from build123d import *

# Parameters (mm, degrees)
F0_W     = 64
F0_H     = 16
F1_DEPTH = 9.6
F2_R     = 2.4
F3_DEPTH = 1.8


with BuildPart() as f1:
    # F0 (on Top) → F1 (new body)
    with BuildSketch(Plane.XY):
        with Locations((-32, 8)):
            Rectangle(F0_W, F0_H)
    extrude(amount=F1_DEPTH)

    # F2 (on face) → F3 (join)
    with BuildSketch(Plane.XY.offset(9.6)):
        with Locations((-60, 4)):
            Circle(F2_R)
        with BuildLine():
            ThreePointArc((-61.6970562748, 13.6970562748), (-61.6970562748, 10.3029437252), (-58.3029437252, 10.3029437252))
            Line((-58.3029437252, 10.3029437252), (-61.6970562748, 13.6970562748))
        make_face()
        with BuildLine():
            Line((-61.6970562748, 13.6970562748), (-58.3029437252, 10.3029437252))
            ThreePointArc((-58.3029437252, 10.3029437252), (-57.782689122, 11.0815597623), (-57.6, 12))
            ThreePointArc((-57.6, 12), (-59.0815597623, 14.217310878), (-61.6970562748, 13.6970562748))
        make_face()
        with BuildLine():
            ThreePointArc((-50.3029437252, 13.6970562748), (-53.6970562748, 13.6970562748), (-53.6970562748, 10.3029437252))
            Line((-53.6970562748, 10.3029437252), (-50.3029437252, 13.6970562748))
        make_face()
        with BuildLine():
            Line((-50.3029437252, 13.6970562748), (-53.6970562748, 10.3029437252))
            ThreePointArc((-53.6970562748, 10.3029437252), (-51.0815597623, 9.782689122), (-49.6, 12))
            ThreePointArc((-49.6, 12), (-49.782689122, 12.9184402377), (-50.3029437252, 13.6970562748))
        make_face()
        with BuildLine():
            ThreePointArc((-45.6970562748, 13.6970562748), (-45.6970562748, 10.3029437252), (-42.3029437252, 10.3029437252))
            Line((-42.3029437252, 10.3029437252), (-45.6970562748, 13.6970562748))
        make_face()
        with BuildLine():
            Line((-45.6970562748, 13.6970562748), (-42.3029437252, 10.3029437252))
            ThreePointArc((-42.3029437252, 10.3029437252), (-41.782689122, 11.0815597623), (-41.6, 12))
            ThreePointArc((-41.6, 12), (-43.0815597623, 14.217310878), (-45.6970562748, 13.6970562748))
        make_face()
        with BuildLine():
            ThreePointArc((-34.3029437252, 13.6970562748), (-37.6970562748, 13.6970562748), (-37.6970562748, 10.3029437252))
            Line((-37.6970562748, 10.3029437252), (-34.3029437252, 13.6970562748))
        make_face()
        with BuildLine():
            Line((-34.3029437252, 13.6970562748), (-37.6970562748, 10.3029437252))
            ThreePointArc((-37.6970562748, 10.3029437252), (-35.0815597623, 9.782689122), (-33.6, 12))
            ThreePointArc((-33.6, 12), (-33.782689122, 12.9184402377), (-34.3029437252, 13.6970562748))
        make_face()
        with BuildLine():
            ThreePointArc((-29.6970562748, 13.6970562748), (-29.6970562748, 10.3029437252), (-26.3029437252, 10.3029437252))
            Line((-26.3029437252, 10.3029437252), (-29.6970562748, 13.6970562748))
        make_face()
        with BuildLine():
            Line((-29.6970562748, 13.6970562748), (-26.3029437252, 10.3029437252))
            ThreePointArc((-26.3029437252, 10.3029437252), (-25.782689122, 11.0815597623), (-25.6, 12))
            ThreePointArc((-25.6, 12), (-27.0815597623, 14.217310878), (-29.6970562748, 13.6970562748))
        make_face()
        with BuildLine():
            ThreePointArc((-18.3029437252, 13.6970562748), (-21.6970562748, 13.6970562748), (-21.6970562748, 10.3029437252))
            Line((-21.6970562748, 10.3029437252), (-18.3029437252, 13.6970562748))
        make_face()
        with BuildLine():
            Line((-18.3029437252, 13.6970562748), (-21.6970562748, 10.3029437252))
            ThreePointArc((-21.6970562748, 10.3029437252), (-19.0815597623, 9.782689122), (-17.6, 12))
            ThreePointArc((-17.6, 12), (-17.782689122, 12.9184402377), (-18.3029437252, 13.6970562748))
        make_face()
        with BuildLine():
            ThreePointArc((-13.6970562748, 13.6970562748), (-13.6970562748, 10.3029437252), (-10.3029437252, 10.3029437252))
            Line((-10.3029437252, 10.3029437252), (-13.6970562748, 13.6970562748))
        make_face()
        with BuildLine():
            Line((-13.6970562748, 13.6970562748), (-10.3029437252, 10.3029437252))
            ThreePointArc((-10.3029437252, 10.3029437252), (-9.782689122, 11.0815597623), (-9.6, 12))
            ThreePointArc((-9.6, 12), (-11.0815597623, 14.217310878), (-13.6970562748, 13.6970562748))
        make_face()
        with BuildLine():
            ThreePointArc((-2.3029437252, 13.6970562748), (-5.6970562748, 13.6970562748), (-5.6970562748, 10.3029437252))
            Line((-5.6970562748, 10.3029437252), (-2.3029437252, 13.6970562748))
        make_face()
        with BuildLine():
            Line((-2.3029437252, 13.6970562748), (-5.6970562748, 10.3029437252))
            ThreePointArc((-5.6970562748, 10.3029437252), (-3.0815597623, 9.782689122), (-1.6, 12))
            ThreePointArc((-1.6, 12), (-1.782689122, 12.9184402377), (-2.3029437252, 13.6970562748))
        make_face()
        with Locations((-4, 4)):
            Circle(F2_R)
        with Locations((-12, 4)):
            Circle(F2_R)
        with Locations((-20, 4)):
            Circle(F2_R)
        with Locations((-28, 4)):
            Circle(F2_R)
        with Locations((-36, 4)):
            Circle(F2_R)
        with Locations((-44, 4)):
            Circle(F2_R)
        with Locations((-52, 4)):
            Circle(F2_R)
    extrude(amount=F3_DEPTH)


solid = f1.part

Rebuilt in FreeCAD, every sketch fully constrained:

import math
import FreeCAD as App
import Part
import Sketcher


def add_polygon(sketch, points):
    """Adds a closed chain of lines whose ends are joined by coincident constraints."""
    first, n = sketch.GeometryCount, len(points)
    for a, b in zip(points, points[1:] + points[:1]):
        sketch.addGeometry(Part.LineSegment(App.Vector(*a, 0), App.Vector(*b, 0)), False)
    for i in range(n):
        sketch.addConstraint(Sketcher.Constraint("Coincident", first + i, 2, first + (i + 1) % n, 1))

doc = App.newDocument("Part")
body = doc.addObject("PartDesign::Body", "Body")

# Sketch on XY plane
sketch1 = doc.addObject("Sketcher::SketchObject", "Sketch")
body.addObject(sketch1)
sketch1.AttachmentSupport = (doc.XY_Plane, [""])
sketch1.MapMode = "FlatFace"
add_polygon(sketch1, [(-64, 16), (-64, 0), (0, 0), (0, 16)])  # lines 0-3
sketch1.addConstraint(Sketcher.Constraint("Vertical", 0))
sketch1.addConstraint(Sketcher.Constraint("Horizontal", 1))
sketch1.addConstraint(Sketcher.Constraint("Vertical", 2))
sketch1.addConstraint(Sketcher.Constraint("Horizontal", 3))
sketch1.addConstraint(Sketcher.Constraint("Coincident", 1, 2, -1, 1))
sketch1.addConstraint(Sketcher.Constraint("DistanceX", 1, 1, 1, 2, 64.0))
sketch1.addConstraint(Sketcher.Constraint("DistanceY", 0, 2, 0, 1, 16.0))
pad1 = doc.addObject("PartDesign::Pad", "Pad")
body.addObject(pad1)
pad1.Profile = sketch1
pad1.Length = 9.6

# Sketch on XY plane
sketch2 = doc.addObject("Sketcher::SketchObject", "Sketch001")
body.addObject(sketch2)
sketch2.AttachmentSupport = (doc.XY_Plane, [""])
sketch2.MapMode = "FlatFace"
sketch2.AttachmentOffset = App.Placement(App.Vector(0, 0, 9.6), App.Rotation())
sketch2.addGeometry(Part.Circle(App.Vector(-60, 4, 0), App.Vector(0, 0, 1), 2.4), False)
sketch2.addGeometry(Part.ArcOfCircle(Part.Circle(App.Vector(-60, 12, 0), App.Vector(0, 0, 1), 2.4), math.radians(135), math.radians(315)), False)
sketch2.addGeometry(Part.ArcOfCircle(Part.Circle(App.Vector(-60, 12, 0), App.Vector(0, 0, 1), 2.4), math.radians(-45), math.radians(0)), False)
sketch2.addGeometry(Part.ArcOfCircle(Part.Circle(App.Vector(-60, 12, 0), App.Vector(0, 0, 1), 2.4), math.radians(0), math.radians(135)), False)
sketch2.addGeometry(Part.ArcOfCircle(Part.Circle(App.Vector(-52, 12, 0), App.Vector(0, 0, 1), 2.4), math.radians(45), math.radians(225)), False)
sketch2.addGeometry(Part.ArcOfCircle(Part.Circle(App.Vector(-52, 12, 0), App.Vector(0, 0, 1), 2.4), math.radians(-135), math.radians(0)), False)
sketch2.addGeometry(Part.ArcOfCircle(Part.Circle(App.Vector(-52, 12, 0), App.Vector(0, 0, 1), 2.4), math.radians(0), math.radians(45)), False)
sketch2.addGeometry(Part.ArcOfCircle(Part.Circle(App.Vector(-44, 12, 0), App.Vector(0, 0, 1), 2.4), math.radians(135), math.radians(315)), False)
sketch2.addGeometry(Part.ArcOfCircle(Part.Circle(App.Vector(-44, 12, 0), App.Vector(0, 0, 1), 2.4), math.radians(-45), math.radians(0)), False)
sketch2.addGeometry(Part.ArcOfCircle(Part.Circle(App.Vector(-44, 12, 0), App.Vector(0, 0, 1), 2.4), math.radians(0), math.radians(135)), False)
sketch2.addGeometry(Part.ArcOfCircle(Part.Circle(App.Vector(-36, 12, 0), App.Vector(0, 0, 1), 2.4), math.radians(45), math.radians(225)), False)
sketch2.addGeometry(Part.ArcOfCircle(Part.Circle(App.Vector(-36, 12, 0), App.Vector(0, 0, 1), 2.4), math.radians(-135), math.radians(0)), False)
sketch2.addGeometry(Part.ArcOfCircle(Part.Circle(App.Vector(-36, 12, 0), App.Vector(0, 0, 1), 2.4), math.radians(0), math.radians(45)), False)
sketch2.addGeometry(Part.ArcOfCircle(Part.Circle(App.Vector(-28, 12, 0), App.Vector(0, 0, 1), 2.4), math.radians(135), math.radians(315)), False)
sketch2.addGeometry(Part.ArcOfCircle(Part.Circle(App.Vector(-28, 12, 0), App.Vector(0, 0, 1), 2.4), math.radians(-45), math.radians(0)), False)
sketch2.addGeometry(Part.ArcOfCircle(Part.Circle(App.Vector(-28, 12, 0), App.Vector(0, 0, 1), 2.4), math.radians(0), math.radians(135)), False)
sketch2.addGeometry(Part.ArcOfCircle(Part.Circle(App.Vector(-20, 12, 0), App.Vector(0, 0, 1), 2.4), math.radians(45), math.radians(225)), False)
sketch2.addGeometry(Part.ArcOfCircle(Part.Circle(App.Vector(-20, 12, 0), App.Vector(0, 0, 1), 2.4), math.radians(-135), math.radians(0)), False)
sketch2.addGeometry(Part.ArcOfCircle(Part.Circle(App.Vector(-20, 12, 0), App.Vector(0, 0, 1), 2.4), math.radians(0), math.radians(45)), False)
sketch2.addGeometry(Part.ArcOfCircle(Part.Circle(App.Vector(-12, 12, 0), App.Vector(0, 0, 1), 2.4), math.radians(135), math.radians(315)), False)
sketch2.addGeometry(Part.ArcOfCircle(Part.Circle(App.Vector(-12, 12, 0), App.Vector(0, 0, 1), 2.4), math.radians(-45), math.radians(0)), False)
sketch2.addGeometry(Part.ArcOfCircle(Part.Circle(App.Vector(-12, 12, 0), App.Vector(0, 0, 1), 2.4), math.radians(0), math.radians(135)), False)
sketch2.addGeometry(Part.ArcOfCircle(Part.Circle(App.Vector(-4, 12, 0), App.Vector(0, 0, 1), 2.4), math.radians(45), math.radians(225)), False)
sketch2.addGeometry(Part.ArcOfCircle(Part.Circle(App.Vector(-4, 12, 0), App.Vector(0, 0, 1), 2.4), math.radians(-135), math.radians(0)), False)
sketch2.addGeometry(Part.ArcOfCircle(Part.Circle(App.Vector(-4, 12, 0), App.Vector(0, 0, 1), 2.4), math.radians(0), math.radians(45)), False)
sketch2.addGeometry(Part.Circle(App.Vector(-4, 4, 0), App.Vector(0, 0, 1), 2.4), False)
sketch2.addGeometry(Part.Circle(App.Vector(-12, 4, 0), App.Vector(0, 0, 1), 2.4), False)
sketch2.addGeometry(Part.Circle(App.Vector(-20, 4, 0), App.Vector(0, 0, 1), 2.4), False)
sketch2.addGeometry(Part.Circle(App.Vector(-28, 4, 0), App.Vector(0, 0, 1), 2.4), False)
sketch2.addGeometry(Part.Circle(App.Vector(-36, 4, 0), App.Vector(0, 0, 1), 2.4), False)
sketch2.addGeometry(Part.Circle(App.Vector(-44, 4, 0), App.Vector(0, 0, 1), 2.4), False)
sketch2.addGeometry(Part.Circle(App.Vector(-52, 4, 0), App.Vector(0, 0, 1), 2.4), False)
sketch2.addConstraint(Sketcher.Constraint("Tangent", 1, 2, 2, 1))
sketch2.addConstraint(Sketcher.Constraint("Tangent", 2, 2, 3, 1))
sketch2.addConstraint(Sketcher.Constraint("Tangent", 3, 2, 1, 1))
sketch2.addConstraint(Sketcher.Constraint("Tangent", 4, 2, 5, 1))
sketch2.addConstraint(Sketcher.Constraint("Tangent", 5, 2, 6, 1))
sketch2.addConstraint(Sketcher.Constraint("Tangent", 6, 2, 4, 1))
sketch2.addConstraint(Sketcher.Constraint("Tangent", 7, 2, 8, 1))
sketch2.addConstraint(Sketcher.Constraint("Tangent", 8, 2, 9, 1))
sketch2.addConstraint(Sketcher.Constraint("Tangent", 9, 2, 7, 1))
sketch2.addConstraint(Sketcher.Constraint("Tangent", 10, 2, 11, 1))
sketch2.addConstraint(Sketcher.Constraint("Tangent", 11, 2, 12, 1))
sketch2.addConstraint(Sketcher.Constraint("Tangent", 12, 2, 10, 1))
sketch2.addConstraint(Sketcher.Constraint("Tangent", 13, 2, 14, 1))
sketch2.addConstraint(Sketcher.Constraint("Tangent", 14, 2, 15, 1))
sketch2.addConstraint(Sketcher.Constraint("Tangent", 15, 2, 13, 1))
sketch2.addConstraint(Sketcher.Constraint("Tangent", 16, 2, 17, 1))
sketch2.addConstraint(Sketcher.Constraint("Tangent", 17, 2, 18, 1))
sketch2.addConstraint(Sketcher.Constraint("Tangent", 18, 2, 16, 1))
sketch2.addConstraint(Sketcher.Constraint("Tangent", 19, 2, 20, 1))
sketch2.addConstraint(Sketcher.Constraint("Tangent", 20, 2, 21, 1))
sketch2.addConstraint(Sketcher.Constraint("Tangent", 21, 2, 19, 1))
sketch2.addConstraint(Sketcher.Constraint("Tangent", 22, 2, 23, 1))
sketch2.addConstraint(Sketcher.Constraint("Tangent", 23, 2, 24, 1))
sketch2.addConstraint(Sketcher.Constraint("Tangent", 24, 2, 22, 1))
sketch2.addConstraint(Sketcher.Constraint("Equal", 0, 1))
sketch2.addConstraint(Sketcher.Constraint("Equal", 3, 4))
sketch2.addConstraint(Sketcher.Constraint("Equal", 6, 7))
sketch2.addConstraint(Sketcher.Constraint("Equal", 9, 10))
sketch2.addConstraint(Sketcher.Constraint("Equal", 12, 13))
sketch2.addConstraint(Sketcher.Constraint("Equal", 15, 16))
sketch2.addConstraint(Sketcher.Constraint("Equal", 18, 19))
sketch2.addConstraint(Sketcher.Constraint("Equal", 21, 22))
sketch2.addConstraint(Sketcher.Constraint("Equal", 24, 25))
sketch2.addConstraint(Sketcher.Constraint("Equal", 25, 26))
sketch2.addConstraint(Sketcher.Constraint("Equal", 26, 27))
sketch2.addConstraint(Sketcher.Constraint("Equal", 27, 28))
sketch2.addConstraint(Sketcher.Constraint("Equal", 28, 29))
sketch2.addConstraint(Sketcher.Constraint("Equal", 29, 30))
sketch2.addConstraint(Sketcher.Constraint("Equal", 30, 31))
sketch2.addConstraint(Sketcher.Constraint("Horizontal", 3, 3, 4, 3))
sketch2.addConstraint(Sketcher.Constraint("Horizontal", 6, 3, 7, 3))
sketch2.addConstraint(Sketcher.Constraint("Horizontal", 9, 3, 10, 3))
sketch2.addConstraint(Sketcher.Constraint("Horizontal", 12, 3, 13, 3))
sketch2.addConstraint(Sketcher.Constraint("Horizontal", 15, 3, 16, 3))
sketch2.addConstraint(Sketcher.Constraint("Horizontal", 18, 3, 19, 3))
sketch2.addConstraint(Sketcher.Constraint("Horizontal", 21, 3, 22, 3))
sketch2.addConstraint(Sketcher.Constraint("Horizontal", 0, 3, 25, 3))
sketch2.addConstraint(Sketcher.Constraint("Horizontal", 25, 3, 26, 3))
sketch2.addConstraint(Sketcher.Constraint("Horizontal", 26, 3, 27, 3))
sketch2.addConstraint(Sketcher.Constraint("Horizontal", 27, 3, 28, 3))
sketch2.addConstraint(Sketcher.Constraint("Horizontal", 28, 3, 29, 3))
sketch2.addConstraint(Sketcher.Constraint("Horizontal", 29, 3, 30, 3))
sketch2.addConstraint(Sketcher.Constraint("Horizontal", 30, 3, 31, 3))
sketch2.addConstraint(Sketcher.Constraint("Horizontal", 24, 3, 2, 2))
sketch2.addConstraint(Sketcher.Constraint("Horizontal", 1, 2, 4, 2))
sketch2.addConstraint(Sketcher.Constraint("Horizontal", 2, 2, 5, 2))
sketch2.addConstraint(Sketcher.Constraint("Horizontal", 3, 2, 6, 2))
sketch2.addConstraint(Sketcher.Constraint("Horizontal", 4, 2, 7, 2))
sketch2.addConstraint(Sketcher.Constraint("Horizontal", 5, 2, 8, 2))
sketch2.addConstraint(Sketcher.Constraint("Horizontal", 6, 2, 9, 2))
sketch2.addConstraint(Sketcher.Constraint("Horizontal", 7, 2, 10, 2))
sketch2.addConstraint(Sketcher.Constraint("Horizontal", 8, 2, 11, 2))
sketch2.addConstraint(Sketcher.Constraint("Horizontal", 9, 2, 12, 2))
sketch2.addConstraint(Sketcher.Constraint("Horizontal", 10, 2, 13, 2))
sketch2.addConstraint(Sketcher.Constraint("Horizontal", 11, 2, 14, 2))
sketch2.addConstraint(Sketcher.Constraint("Horizontal", 12, 2, 15, 2))
sketch2.addConstraint(Sketcher.Constraint("Horizontal", 13, 2, 16, 2))
sketch2.addConstraint(Sketcher.Constraint("Horizontal", 14, 2, 17, 2))
sketch2.addConstraint(Sketcher.Constraint("Horizontal", 15, 2, 18, 2))
sketch2.addConstraint(Sketcher.Constraint("Horizontal", 16, 2, 19, 2))
sketch2.addConstraint(Sketcher.Constraint("Horizontal", 17, 2, 20, 2))
sketch2.addConstraint(Sketcher.Constraint("Horizontal", 18, 2, 21, 2))
sketch2.addConstraint(Sketcher.Constraint("Horizontal", 19, 2, 22, 2))
sketch2.addConstraint(Sketcher.Constraint("Horizontal", 20, 2, 23, 2))
sketch2.addConstraint(Sketcher.Constraint("Horizontal", 21, 2, 24, 2))
sketch2.addConstraint(Sketcher.Constraint("Vertical", 0, 3, 1, 3))
sketch2.addConstraint(Sketcher.Constraint("Vertical", 24, 3, 25, 3))
sketch2.addConstraint(Sketcher.Constraint("Vertical", 21, 3, 26, 3))
sketch2.addConstraint(Sketcher.Constraint("Vertical", 18, 3, 27, 3))
sketch2.addConstraint(Sketcher.Constraint("Vertical", 15, 3, 28, 3))
sketch2.addConstraint(Sketcher.Constraint("Vertical", 12, 3, 29, 3))
sketch2.addConstraint(Sketcher.Constraint("Vertical", 9, 3, 30, 3))
sketch2.addConstraint(Sketcher.Constraint("Vertical", 6, 3, 31, 3))
sketch2.addConstraint(Sketcher.Constraint("Diameter", 0, 4.8))
sketch2.addConstraint(Sketcher.Constraint("DistanceX", 0, 3, -1, 1, 60.0))
sketch2.addConstraint(Sketcher.Constraint("DistanceY", -1, 1, 0, 3, 4.0))
sketch2.addConstraint(Sketcher.Constraint("DistanceY", -1, 1, 1, 3, 12.0))
sketch2.addConstraint(Sketcher.Constraint("DistanceX", 4, 3, -1, 1, 52.0))
sketch2.addConstraint(Sketcher.Constraint("DistanceX", 7, 3, -1, 1, 44.0))
sketch2.addConstraint(Sketcher.Constraint("DistanceX", 10, 3, -1, 1, 36.0))
sketch2.addConstraint(Sketcher.Constraint("DistanceX", 13, 3, -1, 1, 28.0))
sketch2.addConstraint(Sketcher.Constraint("DistanceX", 16, 3, -1, 1, 20.0))
sketch2.addConstraint(Sketcher.Constraint("DistanceX", 19, 3, -1, 1, 12.0))
sketch2.addConstraint(Sketcher.Constraint("DistanceX", 22, 3, -1, 1, 4.0))
sketch2.addConstraint(Sketcher.Constraint("DistanceX", 1, 2, -1, 1, 58.302944))
sketch2.addConstraint(Sketcher.Constraint("DistanceX", 3, 2, -1, 1, 61.697056))
pad2 = doc.addObject("PartDesign::Pad", "Pad001")
body.addObject(pad2)
pad2.Profile = sketch2
pad2.Length = 1.8

doc.recompute()
